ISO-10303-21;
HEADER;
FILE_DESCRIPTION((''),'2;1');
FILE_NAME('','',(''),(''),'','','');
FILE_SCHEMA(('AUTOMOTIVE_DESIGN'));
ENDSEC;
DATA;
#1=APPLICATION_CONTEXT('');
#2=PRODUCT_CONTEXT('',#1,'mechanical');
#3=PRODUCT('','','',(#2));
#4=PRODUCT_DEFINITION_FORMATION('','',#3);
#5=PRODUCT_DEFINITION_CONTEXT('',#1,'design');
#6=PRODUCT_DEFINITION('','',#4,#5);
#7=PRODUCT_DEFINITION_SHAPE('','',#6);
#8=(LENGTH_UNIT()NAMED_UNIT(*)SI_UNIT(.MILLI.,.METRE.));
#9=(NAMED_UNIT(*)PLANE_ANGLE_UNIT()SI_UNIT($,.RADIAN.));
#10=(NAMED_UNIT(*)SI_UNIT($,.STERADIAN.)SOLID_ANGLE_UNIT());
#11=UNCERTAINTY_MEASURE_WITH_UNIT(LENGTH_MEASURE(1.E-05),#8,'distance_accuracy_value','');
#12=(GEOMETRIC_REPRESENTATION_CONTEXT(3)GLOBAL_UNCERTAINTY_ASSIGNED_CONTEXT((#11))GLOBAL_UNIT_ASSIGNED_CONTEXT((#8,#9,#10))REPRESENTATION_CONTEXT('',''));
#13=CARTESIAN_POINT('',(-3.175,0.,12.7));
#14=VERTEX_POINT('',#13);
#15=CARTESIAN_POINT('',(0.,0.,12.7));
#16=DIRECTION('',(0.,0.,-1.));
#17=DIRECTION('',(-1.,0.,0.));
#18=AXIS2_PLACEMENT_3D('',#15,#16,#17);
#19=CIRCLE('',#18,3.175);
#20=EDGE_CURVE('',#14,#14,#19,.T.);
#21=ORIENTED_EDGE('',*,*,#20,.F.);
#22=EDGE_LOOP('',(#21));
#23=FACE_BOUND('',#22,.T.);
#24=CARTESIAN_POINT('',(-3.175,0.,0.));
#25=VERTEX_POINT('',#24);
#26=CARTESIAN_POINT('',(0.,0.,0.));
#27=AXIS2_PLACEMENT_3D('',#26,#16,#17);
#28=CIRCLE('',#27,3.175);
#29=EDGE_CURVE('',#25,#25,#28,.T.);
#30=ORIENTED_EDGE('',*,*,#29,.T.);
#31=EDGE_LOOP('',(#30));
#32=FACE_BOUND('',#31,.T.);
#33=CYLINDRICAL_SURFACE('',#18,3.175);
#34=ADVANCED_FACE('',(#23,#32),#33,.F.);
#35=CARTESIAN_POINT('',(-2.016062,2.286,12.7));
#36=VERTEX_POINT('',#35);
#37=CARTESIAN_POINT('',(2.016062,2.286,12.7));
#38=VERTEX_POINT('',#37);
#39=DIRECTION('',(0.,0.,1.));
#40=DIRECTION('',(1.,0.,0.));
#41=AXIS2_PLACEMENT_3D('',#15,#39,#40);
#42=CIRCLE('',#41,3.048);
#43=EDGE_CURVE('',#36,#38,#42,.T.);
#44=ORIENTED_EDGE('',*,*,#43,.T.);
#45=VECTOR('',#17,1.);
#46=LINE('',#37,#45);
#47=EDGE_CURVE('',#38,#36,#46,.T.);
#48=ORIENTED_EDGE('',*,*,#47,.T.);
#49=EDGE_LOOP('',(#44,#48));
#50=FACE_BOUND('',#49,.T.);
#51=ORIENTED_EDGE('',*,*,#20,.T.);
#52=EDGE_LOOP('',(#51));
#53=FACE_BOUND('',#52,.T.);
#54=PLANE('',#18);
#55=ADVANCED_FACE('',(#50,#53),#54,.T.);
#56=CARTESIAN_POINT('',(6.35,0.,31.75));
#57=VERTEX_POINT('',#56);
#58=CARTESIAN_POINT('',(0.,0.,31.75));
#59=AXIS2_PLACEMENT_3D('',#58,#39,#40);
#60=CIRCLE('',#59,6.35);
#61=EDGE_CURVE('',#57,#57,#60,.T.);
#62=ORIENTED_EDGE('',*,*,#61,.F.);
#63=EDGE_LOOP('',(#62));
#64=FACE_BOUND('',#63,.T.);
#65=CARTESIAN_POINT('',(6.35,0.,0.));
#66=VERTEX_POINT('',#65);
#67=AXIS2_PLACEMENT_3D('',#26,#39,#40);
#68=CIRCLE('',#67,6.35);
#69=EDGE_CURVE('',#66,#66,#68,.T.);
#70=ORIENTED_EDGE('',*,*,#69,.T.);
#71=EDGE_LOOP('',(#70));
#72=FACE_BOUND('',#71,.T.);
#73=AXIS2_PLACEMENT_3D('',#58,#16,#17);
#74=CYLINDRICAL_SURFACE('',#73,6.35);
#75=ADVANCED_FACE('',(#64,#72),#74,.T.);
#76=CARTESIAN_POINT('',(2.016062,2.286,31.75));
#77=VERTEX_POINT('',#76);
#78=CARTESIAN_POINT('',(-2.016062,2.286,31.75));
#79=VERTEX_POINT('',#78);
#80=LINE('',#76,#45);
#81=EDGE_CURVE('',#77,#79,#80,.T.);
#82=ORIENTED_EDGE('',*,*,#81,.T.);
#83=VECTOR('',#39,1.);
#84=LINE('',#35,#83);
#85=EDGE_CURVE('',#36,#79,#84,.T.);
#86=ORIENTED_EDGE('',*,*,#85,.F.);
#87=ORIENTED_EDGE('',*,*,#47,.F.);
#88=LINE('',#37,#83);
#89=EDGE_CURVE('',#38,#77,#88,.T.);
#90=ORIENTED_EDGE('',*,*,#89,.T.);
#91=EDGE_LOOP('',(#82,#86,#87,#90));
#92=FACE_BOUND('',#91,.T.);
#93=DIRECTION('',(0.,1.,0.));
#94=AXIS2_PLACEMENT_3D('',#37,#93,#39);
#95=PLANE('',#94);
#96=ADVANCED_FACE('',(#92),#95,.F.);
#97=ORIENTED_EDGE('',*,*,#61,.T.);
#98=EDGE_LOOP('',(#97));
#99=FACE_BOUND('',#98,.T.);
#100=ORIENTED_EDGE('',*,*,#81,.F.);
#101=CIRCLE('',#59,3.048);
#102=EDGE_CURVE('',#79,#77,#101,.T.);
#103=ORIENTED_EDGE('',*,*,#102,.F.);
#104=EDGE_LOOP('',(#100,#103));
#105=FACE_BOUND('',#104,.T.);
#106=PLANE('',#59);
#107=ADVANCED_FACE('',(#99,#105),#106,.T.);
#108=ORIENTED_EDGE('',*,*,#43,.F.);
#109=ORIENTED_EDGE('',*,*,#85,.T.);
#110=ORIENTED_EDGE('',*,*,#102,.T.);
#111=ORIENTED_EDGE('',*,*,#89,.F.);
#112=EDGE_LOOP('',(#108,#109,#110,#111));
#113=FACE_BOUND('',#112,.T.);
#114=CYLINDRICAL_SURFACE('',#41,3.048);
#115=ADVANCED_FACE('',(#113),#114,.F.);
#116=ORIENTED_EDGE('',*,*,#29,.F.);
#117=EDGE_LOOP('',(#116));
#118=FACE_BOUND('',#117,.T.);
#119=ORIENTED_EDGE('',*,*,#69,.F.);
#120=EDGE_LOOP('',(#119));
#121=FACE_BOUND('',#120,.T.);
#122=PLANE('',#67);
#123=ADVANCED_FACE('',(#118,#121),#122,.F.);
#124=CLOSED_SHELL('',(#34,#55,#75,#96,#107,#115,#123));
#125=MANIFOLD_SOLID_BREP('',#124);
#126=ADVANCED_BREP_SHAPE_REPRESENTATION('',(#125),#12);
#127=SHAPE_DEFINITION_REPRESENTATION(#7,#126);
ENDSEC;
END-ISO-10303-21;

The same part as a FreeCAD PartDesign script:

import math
import FreeCAD as App
import Part
import Sketcher
from FreeCAD import Vector
Q = App.Units.Quantity

doc = App.newDocument("Part")
body = doc.addObject("PartDesign::Body", "Body")

# Sketch on XY plane
sketch1 = body.newObject("Sketcher::SketchObject", "Sketch")
sketch1.AttachmentSupport = (doc.getObject("XY_Plane"), [""])
sketch1.MapMode = "FlatFace"
sketch1.addGeometry(Part.Circle(Vector(0, 0, 0), Vector(0, 0, 1), 6), False)
sketch1.addConstraint(Sketcher.Constraint("Coincident", 0, 3, -1, 1))
sketch1.addConstraint(Sketcher.Constraint("Diameter", 0, Q("0.5 in")))
pad1 = body.newObject("PartDesign::Pad", "Pad")
pad1.Profile = sketch1
pad1.Length = Q("1.25 in")

# Sketch on XY plane
sketch2 = body.newObject("Sketcher::SketchObject", "Sketch001")
sketch2.AttachmentSupport = (doc.getObject("XY_Plane"), [""])
sketch2.MapMode = "FlatFace"
sketch2.AttachmentOffset = App.Placement(Vector(0, 0, 1.25 * 25.4), App.Rotation())
sketch2.addGeometry(Part.LineSegment(Vector(2, 2.3, 0), Vector(-2, 2.3, 0)), False)
sketch2.addGeometry(Part.ArcOfCircle(Part.Circle(Vector(0, 0, 0), Vector(0, 0, 1), 3), math.radians(131), math.radians(409)), False)
sketch2.addConstraint(Sketcher.Constraint("Coincident", 0, 1, 1, 2))
sketch2.addConstraint(Sketcher.Constraint("Coincident", 1, 1, 0, 2))
sketch2.addConstraint(Sketcher.Constraint("Horizontal", 0))
sketch2.addConstraint(Sketcher.Constraint("Coincident", 1, 3, -1, 1))
sketch2.addConstraint(Sketcher.Constraint("Radius", 1, Q("0.12 in")))
sketch2.addConstraint(Sketcher.Constraint("DistanceY", -1, 1, 0, 1, Q("0.09 in")))
pocket1 = body.newObject("PartDesign::Pocket", "Pocket")
pocket1.Profile = sketch2
pocket1.Length = Q("0.75 in")

# Sketch on XY plane
sketch3 = body.newObject("Sketcher::SketchObject", "Sketch002")
sketch3.AttachmentSupport = (doc.getObject("XY_Plane"), [""])
sketch3.MapMode = "FlatFace"
sketch3.addGeometry(Part.Circle(Vector(0, 0, 0), Vector(0, 0, 1), 3.2), False)
sketch3.addConstraint(Sketcher.Constraint("Coincident", 0, 3, -1, 1))
sketch3.addConstraint(Sketcher.Constraint("Diameter", 0, Q("0.25 in")))
pocket2 = body.newObject("PartDesign::Pocket", "Pocket001")
pocket2.Profile = sketch3
pocket2.Length = Q("0.5 in")
pocket2.Reversed = True

doc.recompute()
